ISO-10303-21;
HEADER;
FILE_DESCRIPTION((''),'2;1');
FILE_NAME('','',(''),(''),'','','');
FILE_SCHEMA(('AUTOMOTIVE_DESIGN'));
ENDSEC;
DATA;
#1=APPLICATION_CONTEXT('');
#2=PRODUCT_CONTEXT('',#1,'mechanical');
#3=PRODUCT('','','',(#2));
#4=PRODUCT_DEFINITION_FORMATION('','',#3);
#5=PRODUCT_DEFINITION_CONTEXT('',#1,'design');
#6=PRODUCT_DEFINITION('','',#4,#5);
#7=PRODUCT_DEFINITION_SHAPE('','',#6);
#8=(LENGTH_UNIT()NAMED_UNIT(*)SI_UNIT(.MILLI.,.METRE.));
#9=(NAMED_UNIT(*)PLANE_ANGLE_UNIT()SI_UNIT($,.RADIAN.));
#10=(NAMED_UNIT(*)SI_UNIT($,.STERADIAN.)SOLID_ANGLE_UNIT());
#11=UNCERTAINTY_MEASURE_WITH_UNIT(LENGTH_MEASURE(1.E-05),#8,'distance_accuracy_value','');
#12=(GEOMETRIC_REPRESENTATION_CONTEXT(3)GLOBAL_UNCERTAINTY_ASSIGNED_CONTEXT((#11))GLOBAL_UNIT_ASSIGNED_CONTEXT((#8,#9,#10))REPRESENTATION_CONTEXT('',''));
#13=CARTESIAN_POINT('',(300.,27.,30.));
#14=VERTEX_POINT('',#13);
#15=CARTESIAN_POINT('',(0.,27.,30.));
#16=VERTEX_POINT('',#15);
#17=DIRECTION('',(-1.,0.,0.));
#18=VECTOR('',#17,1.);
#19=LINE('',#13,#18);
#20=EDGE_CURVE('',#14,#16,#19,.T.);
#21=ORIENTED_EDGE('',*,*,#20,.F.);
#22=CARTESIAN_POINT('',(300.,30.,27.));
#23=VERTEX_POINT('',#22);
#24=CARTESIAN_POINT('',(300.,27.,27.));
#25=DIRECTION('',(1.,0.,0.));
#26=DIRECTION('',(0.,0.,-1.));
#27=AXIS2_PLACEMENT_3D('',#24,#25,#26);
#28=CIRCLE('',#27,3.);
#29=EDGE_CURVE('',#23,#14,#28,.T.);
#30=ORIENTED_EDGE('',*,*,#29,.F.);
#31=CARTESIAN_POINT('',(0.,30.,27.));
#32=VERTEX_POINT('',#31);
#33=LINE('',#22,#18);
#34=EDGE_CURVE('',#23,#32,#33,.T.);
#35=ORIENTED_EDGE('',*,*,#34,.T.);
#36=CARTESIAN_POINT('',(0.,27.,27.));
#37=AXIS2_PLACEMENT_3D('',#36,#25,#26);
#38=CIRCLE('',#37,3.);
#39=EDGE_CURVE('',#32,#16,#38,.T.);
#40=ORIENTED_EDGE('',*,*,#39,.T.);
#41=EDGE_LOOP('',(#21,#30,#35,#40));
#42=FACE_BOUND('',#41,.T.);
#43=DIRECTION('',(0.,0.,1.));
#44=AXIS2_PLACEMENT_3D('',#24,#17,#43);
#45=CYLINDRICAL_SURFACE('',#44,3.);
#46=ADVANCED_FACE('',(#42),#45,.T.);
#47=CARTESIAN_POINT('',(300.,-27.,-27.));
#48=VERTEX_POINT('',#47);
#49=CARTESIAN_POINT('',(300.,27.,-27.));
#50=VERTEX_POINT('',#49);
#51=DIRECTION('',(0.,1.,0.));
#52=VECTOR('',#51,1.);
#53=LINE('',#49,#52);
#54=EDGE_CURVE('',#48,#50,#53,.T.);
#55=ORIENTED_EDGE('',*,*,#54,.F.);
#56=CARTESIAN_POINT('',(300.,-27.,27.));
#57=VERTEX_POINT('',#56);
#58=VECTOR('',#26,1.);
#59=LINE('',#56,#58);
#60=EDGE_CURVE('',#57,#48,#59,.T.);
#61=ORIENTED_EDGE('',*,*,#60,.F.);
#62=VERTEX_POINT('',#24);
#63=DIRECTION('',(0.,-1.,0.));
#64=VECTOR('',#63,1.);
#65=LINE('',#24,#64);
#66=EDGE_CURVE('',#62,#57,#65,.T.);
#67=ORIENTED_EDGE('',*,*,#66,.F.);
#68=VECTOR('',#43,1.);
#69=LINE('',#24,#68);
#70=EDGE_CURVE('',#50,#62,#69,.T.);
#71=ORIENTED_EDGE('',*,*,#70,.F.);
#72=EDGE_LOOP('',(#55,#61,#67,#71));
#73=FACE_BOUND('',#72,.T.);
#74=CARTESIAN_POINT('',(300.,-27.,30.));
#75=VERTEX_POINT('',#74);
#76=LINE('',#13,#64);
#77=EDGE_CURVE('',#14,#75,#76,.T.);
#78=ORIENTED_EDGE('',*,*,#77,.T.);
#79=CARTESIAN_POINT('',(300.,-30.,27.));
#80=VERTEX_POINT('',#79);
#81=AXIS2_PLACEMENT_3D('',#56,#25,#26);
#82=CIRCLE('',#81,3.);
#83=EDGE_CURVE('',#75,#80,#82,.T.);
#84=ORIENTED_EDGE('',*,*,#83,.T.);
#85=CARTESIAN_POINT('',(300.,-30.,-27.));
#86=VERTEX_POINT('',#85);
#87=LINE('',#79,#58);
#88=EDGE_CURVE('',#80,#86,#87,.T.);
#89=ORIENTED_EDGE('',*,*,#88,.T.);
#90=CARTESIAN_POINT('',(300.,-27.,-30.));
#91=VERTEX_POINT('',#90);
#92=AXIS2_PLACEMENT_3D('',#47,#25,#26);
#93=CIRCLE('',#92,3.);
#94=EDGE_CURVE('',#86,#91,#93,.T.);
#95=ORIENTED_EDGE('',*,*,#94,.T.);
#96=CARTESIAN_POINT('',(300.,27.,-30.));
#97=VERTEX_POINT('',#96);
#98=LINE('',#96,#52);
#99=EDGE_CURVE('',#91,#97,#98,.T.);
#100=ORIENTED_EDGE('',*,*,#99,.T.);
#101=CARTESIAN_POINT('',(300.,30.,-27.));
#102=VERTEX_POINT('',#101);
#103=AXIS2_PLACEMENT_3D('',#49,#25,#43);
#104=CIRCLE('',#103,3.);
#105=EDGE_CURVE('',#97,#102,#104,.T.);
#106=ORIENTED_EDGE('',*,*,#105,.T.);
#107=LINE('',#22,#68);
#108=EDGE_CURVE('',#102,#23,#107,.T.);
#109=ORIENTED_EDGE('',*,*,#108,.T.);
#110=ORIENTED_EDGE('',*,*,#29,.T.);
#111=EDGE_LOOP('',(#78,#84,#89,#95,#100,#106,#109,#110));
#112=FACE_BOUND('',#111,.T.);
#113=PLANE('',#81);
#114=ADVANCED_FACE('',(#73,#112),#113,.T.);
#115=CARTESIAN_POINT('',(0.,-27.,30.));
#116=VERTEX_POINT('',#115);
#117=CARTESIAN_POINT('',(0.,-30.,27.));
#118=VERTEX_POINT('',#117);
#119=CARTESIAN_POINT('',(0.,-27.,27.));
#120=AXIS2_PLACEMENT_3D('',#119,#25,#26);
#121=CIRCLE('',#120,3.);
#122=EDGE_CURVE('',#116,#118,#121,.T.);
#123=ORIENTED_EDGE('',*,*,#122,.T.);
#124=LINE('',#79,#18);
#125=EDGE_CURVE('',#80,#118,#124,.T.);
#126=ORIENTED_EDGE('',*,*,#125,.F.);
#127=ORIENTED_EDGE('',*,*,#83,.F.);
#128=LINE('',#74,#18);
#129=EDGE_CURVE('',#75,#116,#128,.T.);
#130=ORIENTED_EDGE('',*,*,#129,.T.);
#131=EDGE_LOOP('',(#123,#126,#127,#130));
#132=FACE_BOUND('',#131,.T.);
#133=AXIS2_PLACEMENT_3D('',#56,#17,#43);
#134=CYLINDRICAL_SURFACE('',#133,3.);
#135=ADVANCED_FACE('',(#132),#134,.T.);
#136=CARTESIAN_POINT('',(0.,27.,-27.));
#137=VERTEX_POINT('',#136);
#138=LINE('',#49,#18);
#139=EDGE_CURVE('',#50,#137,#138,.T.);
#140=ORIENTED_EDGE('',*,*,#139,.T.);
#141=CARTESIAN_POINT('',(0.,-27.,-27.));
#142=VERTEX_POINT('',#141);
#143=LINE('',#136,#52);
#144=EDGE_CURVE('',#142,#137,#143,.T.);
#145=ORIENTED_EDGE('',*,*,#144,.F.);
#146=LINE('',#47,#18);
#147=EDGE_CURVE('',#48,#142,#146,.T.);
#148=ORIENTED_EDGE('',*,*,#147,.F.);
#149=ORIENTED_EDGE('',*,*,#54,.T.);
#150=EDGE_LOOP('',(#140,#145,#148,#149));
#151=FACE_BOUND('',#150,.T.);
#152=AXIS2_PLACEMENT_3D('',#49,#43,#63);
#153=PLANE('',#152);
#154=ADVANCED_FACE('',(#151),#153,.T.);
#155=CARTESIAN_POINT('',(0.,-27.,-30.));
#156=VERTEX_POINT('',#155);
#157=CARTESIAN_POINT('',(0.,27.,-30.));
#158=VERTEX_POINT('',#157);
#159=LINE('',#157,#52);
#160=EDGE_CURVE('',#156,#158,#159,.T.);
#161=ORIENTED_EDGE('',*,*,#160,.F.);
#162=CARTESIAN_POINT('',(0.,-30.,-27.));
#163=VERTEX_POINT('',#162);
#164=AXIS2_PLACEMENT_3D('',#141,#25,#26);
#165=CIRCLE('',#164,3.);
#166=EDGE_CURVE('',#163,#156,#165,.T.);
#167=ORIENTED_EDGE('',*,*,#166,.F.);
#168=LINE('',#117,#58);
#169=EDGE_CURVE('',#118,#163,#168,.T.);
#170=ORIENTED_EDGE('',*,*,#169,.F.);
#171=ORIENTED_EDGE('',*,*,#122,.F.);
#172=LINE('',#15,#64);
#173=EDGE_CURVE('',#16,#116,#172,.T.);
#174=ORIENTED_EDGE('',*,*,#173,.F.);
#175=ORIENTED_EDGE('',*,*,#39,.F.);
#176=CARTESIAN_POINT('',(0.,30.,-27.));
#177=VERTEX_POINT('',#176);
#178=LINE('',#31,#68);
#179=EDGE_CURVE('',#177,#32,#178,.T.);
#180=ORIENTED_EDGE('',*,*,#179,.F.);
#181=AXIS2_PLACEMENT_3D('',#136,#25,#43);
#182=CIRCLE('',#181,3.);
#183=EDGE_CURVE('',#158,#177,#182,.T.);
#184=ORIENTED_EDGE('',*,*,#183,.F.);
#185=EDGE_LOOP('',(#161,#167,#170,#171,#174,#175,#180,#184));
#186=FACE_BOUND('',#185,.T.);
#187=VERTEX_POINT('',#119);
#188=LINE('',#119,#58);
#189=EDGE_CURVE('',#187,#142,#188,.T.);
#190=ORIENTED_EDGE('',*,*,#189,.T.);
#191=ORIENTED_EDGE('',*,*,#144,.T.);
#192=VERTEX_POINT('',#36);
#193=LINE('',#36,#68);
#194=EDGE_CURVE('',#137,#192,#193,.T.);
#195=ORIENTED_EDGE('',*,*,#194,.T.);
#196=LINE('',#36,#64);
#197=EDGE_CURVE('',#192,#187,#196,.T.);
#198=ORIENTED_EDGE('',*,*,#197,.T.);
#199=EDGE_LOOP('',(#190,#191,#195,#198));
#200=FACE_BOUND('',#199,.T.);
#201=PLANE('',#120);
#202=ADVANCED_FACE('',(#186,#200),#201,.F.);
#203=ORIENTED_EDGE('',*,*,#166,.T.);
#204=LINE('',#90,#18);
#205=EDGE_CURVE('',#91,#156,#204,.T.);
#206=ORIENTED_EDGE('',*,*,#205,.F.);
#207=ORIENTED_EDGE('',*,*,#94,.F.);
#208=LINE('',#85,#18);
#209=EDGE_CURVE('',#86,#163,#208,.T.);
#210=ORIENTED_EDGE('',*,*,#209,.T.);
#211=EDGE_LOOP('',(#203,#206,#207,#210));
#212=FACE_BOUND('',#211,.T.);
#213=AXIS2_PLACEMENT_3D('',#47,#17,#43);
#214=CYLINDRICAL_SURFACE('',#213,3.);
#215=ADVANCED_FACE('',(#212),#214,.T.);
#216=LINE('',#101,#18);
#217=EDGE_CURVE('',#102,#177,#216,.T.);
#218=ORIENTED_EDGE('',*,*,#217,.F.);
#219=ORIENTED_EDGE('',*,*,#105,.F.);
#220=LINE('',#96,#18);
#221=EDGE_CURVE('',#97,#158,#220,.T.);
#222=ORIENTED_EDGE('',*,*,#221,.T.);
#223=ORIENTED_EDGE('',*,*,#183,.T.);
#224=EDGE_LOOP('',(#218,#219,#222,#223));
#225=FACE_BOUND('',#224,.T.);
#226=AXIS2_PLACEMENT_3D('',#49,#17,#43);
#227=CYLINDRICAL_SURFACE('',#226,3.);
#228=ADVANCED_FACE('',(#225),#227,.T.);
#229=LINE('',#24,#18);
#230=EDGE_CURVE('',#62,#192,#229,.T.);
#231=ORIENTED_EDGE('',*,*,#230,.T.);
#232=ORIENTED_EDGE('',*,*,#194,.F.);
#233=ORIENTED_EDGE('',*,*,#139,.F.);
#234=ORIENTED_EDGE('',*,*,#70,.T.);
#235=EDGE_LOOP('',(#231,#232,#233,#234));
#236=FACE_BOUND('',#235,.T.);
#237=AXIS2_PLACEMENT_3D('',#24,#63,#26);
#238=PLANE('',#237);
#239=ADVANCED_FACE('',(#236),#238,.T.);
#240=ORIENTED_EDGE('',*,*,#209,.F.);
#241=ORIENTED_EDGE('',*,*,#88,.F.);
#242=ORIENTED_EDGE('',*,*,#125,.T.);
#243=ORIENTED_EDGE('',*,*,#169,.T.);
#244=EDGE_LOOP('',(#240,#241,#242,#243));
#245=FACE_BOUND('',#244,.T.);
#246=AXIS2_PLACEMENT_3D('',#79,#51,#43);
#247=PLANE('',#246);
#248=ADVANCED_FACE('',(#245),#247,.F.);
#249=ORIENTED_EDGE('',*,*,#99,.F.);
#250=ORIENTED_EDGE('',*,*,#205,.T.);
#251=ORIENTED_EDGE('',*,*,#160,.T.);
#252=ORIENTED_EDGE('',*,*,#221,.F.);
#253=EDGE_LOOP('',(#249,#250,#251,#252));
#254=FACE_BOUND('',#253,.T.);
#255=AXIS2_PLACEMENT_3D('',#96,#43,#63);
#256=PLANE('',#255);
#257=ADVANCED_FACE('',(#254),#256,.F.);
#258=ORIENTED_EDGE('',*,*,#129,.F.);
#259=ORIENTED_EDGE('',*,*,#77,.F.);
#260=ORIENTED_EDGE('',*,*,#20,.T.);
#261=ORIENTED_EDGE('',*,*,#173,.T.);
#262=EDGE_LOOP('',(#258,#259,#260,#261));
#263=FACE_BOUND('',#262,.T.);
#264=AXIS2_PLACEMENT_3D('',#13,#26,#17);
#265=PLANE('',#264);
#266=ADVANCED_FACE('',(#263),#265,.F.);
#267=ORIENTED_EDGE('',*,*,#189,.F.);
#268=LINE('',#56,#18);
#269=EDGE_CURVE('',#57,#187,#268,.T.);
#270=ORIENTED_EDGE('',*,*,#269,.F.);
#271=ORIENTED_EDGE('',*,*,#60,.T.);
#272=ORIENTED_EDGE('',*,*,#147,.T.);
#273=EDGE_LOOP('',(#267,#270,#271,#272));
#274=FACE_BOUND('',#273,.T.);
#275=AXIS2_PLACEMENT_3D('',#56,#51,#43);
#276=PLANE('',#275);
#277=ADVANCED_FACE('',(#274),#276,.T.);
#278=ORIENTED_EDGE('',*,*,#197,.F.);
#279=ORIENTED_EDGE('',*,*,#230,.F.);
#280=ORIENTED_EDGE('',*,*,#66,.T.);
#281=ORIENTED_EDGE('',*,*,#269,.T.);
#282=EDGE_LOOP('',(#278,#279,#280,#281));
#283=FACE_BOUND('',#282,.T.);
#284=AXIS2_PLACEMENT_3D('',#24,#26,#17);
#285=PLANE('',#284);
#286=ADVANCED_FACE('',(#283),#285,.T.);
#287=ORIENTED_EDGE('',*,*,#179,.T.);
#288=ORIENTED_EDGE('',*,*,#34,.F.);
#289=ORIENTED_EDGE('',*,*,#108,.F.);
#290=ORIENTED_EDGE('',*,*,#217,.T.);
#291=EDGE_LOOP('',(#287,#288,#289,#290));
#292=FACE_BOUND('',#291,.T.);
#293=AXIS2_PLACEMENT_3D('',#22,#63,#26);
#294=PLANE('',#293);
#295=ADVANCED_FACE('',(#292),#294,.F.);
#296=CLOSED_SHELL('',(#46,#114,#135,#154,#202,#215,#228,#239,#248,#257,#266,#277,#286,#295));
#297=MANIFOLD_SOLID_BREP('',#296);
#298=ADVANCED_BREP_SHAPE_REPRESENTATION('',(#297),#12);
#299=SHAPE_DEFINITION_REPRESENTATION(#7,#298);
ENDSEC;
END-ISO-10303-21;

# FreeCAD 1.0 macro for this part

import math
import FreeCAD as App
import Part
import Sketcher

doc = App.newDocument("Part")
params = doc.addObject("Spreadsheet::Sheet", "Params")
for row, (alias, value) in enumerate([
    ("sketch1_radius", "3 mm"),
    ("sketch1_width", "54 mm"),
    ("pad1_length", "300 mm"),
], start=1):
    params.set(f"A{row}", alias)
    params.set(f"B{row}", "=" + value)
    params.setAlias(f"B{row}", alias)

body = doc.addObject("PartDesign::Body", "Body")

sketch1 = doc.addObject("Sketcher::SketchObject", "Sketch")
body.addObject(sketch1)
sketch1.AttachmentSupport = (doc.YZ_Plane, [""])
sketch1.MapMode = "FlatFace"
sketch1.addGeometry([
    Part.LineSegment(App.Vector(30, -27, 0), App.Vector(30, 27, 0)),
    Part.ArcOfCircle(Part.Circle(App.Vector(27, 27, 0), App.Vector(0, 0, 1), 3), math.radians(0), math.radians(90)),
    Part.LineSegment(App.Vector(27, 30, 0), App.Vector(-27, 30, 0)),
    Part.ArcOfCircle(Part.Circle(App.Vector(-27, 27, 0), App.Vector(0, 0, 1), 3), math.radians(90), math.radians(180)),
    Part.LineSegment(App.Vector(-30, 27, 0), App.Vector(-30, -27, 0)),
    Part.ArcOfCircle(Part.Circle(App.Vector(-27, -27, 0), App.Vector(0, 0, 1), 3), math.radians(180), math.radians(270)),
    Part.LineSegment(App.Vector(-27, -30, 0), App.Vector(27, -30, 0)),
    Part.ArcOfCircle(Part.Circle(App.Vector(27, -27, 0), App.Vector(0, 0, 1), 3), math.radians(-90), math.radians(0)),
    Part.LineSegment(App.Vector(-27, 27, 0), App.Vector(27, 27, 0)),
    Part.LineSegment(App.Vector(27, 27, 0), App.Vector(27, -27, 0)),
    Part.LineSegment(App.Vector(27, -27, 0), App.Vector(-27, -27, 0)),
    Part.LineSegment(App.Vector(-27, -27, 0), App.Vector(-27, 27, 0)),
], False)
sketch1.addConstraint([
    Sketcher.Constraint("Tangent", 0, 2, 1, 1),
    Sketcher.Constraint("Tangent", 1, 2, 2, 1),
    Sketcher.Constraint("Tangent", 2, 2, 3, 1),
    Sketcher.Constraint("Tangent", 3, 2, 4, 1),
    Sketcher.Constraint("Tangent", 4, 2, 5, 1),
    Sketcher.Constraint("Tangent", 5, 2, 6, 1),
    Sketcher.Constraint("Tangent", 6, 2, 7, 1),
    Sketcher.Constraint("Tangent", 7, 2, 0, 1),
    Sketcher.Constraint("Coincident", 8, 2, 9, 1),
    Sketcher.Constraint("Coincident", 9, 2, 10, 1),
    Sketcher.Constraint("Coincident", 10, 2, 11, 1),
    Sketcher.Constraint("Coincident", 11, 2, 8, 1),
    Sketcher.Constraint("Vertical", 0),
    Sketcher.Constraint("Horizontal", 2),
    Sketcher.Constraint("Vertical", 4),
    Sketcher.Constraint("Horizontal", 6),
    Sketcher.Constraint("Horizontal", 8),
    Sketcher.Constraint("Vertical", 9),
    Sketcher.Constraint("Horizontal", 10),
    Sketcher.Constraint("Vertical", 11),
    Sketcher.Constraint("Coincident", 8, 2, 1, 3),
    Sketcher.Constraint("Coincident", 9, 2, 7, 3),
    Sketcher.Constraint("Coincident", 10, 2, 5, 3),
    Sketcher.Constraint("Equal", 1, 3),
    Sketcher.Constraint("Symmetric", 1, 3, 5, 3, -1, 1),
    Sketcher.Constraint("Equal", 10, 0),
    Sketcher.Constraint("Radius", 1, 3.0),
    Sketcher.Constraint("DistanceX", 2, 2, 2, 1, 54.0),
])
sketch1.setExpression("Constraints[26]", "Params.sketch1_radius")
sketch1.setExpression("Constraints[27]", "Params.sketch1_width")
pad1 = doc.addObject("PartDesign::Pad", "Pad")
body.addObject(pad1)
pad1.Profile = sketch1
pad1.setExpression("Length", "Params.pad1_length")

doc.recompute()
